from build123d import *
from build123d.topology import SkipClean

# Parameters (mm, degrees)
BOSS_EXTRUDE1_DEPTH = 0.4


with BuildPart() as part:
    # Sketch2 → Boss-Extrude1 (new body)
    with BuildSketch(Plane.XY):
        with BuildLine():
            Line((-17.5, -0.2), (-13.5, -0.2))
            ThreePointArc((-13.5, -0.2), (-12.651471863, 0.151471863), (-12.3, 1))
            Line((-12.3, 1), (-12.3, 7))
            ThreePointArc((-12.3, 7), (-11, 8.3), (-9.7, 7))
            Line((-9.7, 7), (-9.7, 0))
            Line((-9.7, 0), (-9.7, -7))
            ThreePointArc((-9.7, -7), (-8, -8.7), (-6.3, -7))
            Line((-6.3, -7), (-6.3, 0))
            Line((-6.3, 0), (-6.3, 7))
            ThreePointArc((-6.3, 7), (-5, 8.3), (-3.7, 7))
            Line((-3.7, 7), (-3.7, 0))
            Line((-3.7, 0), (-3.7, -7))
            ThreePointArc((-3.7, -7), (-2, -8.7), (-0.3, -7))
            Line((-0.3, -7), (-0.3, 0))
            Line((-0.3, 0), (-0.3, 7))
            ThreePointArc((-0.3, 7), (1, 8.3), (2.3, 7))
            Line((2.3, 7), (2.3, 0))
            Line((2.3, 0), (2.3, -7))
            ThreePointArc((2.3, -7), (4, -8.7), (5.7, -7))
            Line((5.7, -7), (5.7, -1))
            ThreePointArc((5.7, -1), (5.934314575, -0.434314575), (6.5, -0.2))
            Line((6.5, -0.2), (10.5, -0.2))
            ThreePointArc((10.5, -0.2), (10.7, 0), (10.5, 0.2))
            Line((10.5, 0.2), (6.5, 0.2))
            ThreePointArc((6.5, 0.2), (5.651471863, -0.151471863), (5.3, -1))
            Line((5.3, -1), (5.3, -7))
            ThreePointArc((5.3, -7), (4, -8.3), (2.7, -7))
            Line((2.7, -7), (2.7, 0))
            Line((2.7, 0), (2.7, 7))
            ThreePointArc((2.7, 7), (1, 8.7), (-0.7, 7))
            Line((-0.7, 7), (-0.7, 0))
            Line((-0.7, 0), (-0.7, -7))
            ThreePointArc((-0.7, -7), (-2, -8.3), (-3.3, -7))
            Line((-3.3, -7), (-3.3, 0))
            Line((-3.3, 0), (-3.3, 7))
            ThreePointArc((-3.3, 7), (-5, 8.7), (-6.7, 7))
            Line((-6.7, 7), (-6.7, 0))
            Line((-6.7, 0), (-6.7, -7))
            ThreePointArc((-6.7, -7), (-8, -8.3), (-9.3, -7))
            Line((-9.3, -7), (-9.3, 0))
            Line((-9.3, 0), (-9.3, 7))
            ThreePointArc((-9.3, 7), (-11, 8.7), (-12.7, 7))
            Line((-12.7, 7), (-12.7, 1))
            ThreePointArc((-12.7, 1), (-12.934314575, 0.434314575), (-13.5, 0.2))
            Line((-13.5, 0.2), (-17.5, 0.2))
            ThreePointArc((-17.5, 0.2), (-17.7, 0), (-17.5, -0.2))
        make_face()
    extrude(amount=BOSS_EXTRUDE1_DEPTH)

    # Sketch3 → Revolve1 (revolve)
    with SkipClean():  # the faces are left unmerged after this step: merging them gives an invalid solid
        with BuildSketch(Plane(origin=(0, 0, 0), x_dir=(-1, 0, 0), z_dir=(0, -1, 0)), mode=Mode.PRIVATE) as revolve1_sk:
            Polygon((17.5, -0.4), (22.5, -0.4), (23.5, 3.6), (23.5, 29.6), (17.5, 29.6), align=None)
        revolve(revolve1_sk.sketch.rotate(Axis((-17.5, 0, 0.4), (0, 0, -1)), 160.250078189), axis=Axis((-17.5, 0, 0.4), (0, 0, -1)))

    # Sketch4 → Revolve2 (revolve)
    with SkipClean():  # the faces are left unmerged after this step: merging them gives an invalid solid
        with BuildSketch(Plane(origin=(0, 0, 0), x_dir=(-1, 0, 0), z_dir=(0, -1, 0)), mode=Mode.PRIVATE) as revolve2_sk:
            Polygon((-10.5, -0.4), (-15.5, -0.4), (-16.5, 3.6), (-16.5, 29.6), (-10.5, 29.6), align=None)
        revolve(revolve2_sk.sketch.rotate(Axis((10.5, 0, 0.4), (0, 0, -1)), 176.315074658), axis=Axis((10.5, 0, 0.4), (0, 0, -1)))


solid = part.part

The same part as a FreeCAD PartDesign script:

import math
import FreeCAD as App
import Part
import Sketcher

V = App.Vector

doc = App.newDocument("Part")
params = doc.addObject("Spreadsheet::Sheet", "Params")
for row, (alias, value) in enumerate([
    ("sketch1_radius", "1.2 mm"),
    ("sketch1_radius2", "1.3 mm"),
    ("sketch1_radius3", "1.7 mm"),
    ("sketch1_width", "4 mm"),
    ("sketch1_height", "6 mm"),
    ("pad1_length", "0.4 mm"),
    ("sketch2_width", "5 mm"),
    ("sketch2_width2", "6 mm"),
    ("sketch2_height", "26 mm"),
    ("sketch2_height2", "30 mm"),
    ("revolution_angle", "360 deg"),
    ("sketch3_width", "5 mm"),
    ("sketch3_width2", "6 mm"),
    ("sketch3_height", "30 mm"),
    ("sketch3_height2", "26 mm"),
    ("revolution2_angle", "360 deg"),
], start=1):
    params.set(f"A{row}", alias)
    params.set(f"B{row}", "=" + value)
    params.setAlias(f"B{row}", alias)

body = doc.addObject("PartDesign::Body", "Body")

# Sketch on XY plane
sketch1 = body.newObject("Sketcher::SketchObject", "Sketch")
sketch1.AttachmentSupport = (doc.getObject("XY_Plane"), [""])
sketch1.MapMode = "FlatFace"
sketch1.addGeometry(Part.LineSegment(V(-17.5, -0.2, 0), V(-13.5, -0.2, 0)), False)
sketch1.addGeometry(Part.ArcOfCircle(Part.Circle(V(-13.5, 1, 0), V(0, 0, 1), 1.2), math.radians(-90), math.radians(0)), False)
sketch1.addGeometry(Part.LineSegment(V(-12.3, 1, 0), V(-12.3, 7, 0)), False)
sketch1.addGeometry(Part.ArcOfCircle(Part.Circle(V(-11, 7, 0), V(0, 0, 1), 1.3), math.radians(0), math.radians(180)), False)
sketch1.addGeometry(Part.LineSegment(V(-9.7, 7, 0), V(-9.7, -7, 0)), False)
sketch1.addGeometry(Part.ArcOfCircle(Part.Circle(V(-8, -7, 0), V(0, 0, 1), 1.7), math.radians(180), math.radians(360)), False)
sketch1.addGeometry(Part.LineSegment(V(-6.3, -7, 0), V(-6.3, 7, 0)), False)
sketch1.addGeometry(Part.ArcOfCircle(Part.Circle(V(-5, 7, 0), V(0, 0, 1), 1.3), math.radians(0), math.radians(180)), False)
sketch1.addGeometry(Part.LineSegment(V(-3.7, 7, 0), V(-3.7, -7, 0)), False)
sketch1.addGeometry(Part.ArcOfCircle(Part.Circle(V(-2, -7, 0), V(0, 0, 1), 1.7), math.radians(180), math.radians(360)), False)
sketch1.addGeometry(Part.LineSegment(V(-0.3, -7, 0), V(-0.3, 7, 0)), False)
sketch1.addGeometry(Part.ArcOfCircle(Part.Circle(V(1, 7, 0), V(0, 0, 1), 1.3), math.radians(0), math.radians(180)), False)
sketch1.addGeometry(Part.LineSegment(V(2.3, 7, 0), V(2.3, -7, 0)), False)
sketch1.addGeometry(Part.ArcOfCircle(Part.Circle(V(4, -7, 0), V(0, 0, 1), 1.7), math.radians(180), math.radians(360)), False)
sketch1.addGeometry(Part.LineSegment(V(5.7, -7, 0), V(5.7, -1, 0)), False)
sketch1.addGeometry(Part.ArcOfCircle(Part.Circle(V(6.5, -1, 0), V(0, 0, 1), 0.8), math.radians(90), math.radians(180)), False)
sketch1.addGeometry(Part.LineSegment(V(6.5, -0.2, 0), V(10.5, -0.2, 0)), False)
sketch1.addGeometry(Part.ArcOfCircle(Part.Circle(V(10.5, 0, 0), V(0, 0, 1), 0.2), math.radians(-90), math.radians(90)), False)
sketch1.addGeometry(Part.LineSegment(V(10.5, 0.2, 0), V(6.5, 0.2, 0)), False)
sketch1.addGeometry(Part.ArcOfCircle(Part.Circle(V(6.5, -1, 0), V(0, 0, 1), 1.2), math.radians(90), math.radians(180)), False)
sketch1.addGeometry(Part.LineSegment(V(5.3, -1, 0), V(5.3, -7, 0)), False)
sketch1.addGeometry(Part.ArcOfCircle(Part.Circle(V(4, -7, 0), V(0, 0, 1), 1.3), math.radians(180), math.radians(360)), False)
sketch1.addGeometry(Part.LineSegment(V(2.7, -7, 0), V(2.7, 7, 0)), False)
sketch1.addGeometry(Part.ArcOfCircle(Part.Circle(V(1, 7, 0), V(0, 0, 1), 1.7), math.radians(0), math.radians(180)), False)
sketch1.addGeometry(Part.LineSegment(V(-0.7, 7, 0), V(-0.7, -7, 0)), False)
sketch1.addGeometry(Part.ArcOfCircle(Part.Circle(V(-2, -7, 0), V(0, 0, 1), 1.3), math.radians(180), math.radians(360)), False)
sketch1.addGeometry(Part.LineSegment(V(-3.3, -7, 0), V(-3.3, 7, 0)), False)
sketch1.addGeometry(Part.ArcOfCircle(Part.Circle(V(-5, 7, 0), V(0, 0, 1), 1.7), math.radians(0), math.radians(180)), False)
sketch1.addGeometry(Part.LineSegment(V(-6.7, 7, 0), V(-6.7, -7, 0)), False)
sketch1.addGeometry(Part.ArcOfCircle(Part.Circle(V(-8, -7, 0), V(0, 0, 1), 1.3), math.radians(180), math.radians(360)), False)
sketch1.addGeometry(Part.LineSegment(V(-9.3, -7, 0), V(-9.3, 7, 0)), False)
sketch1.addGeometry(Part.ArcOfCircle(Part.Circle(V(-11, 7, 0), V(0, 0, 1), 1.7), math.radians(0), math.radians(180)), False)
sketch1.addGeometry(Part.LineSegment(V(-12.7, 7, 0), V(-12.7, 1, 0)), False)
sketch1.addGeometry(Part.ArcOfCircle(Part.Circle(V(-13.5, 1, 0), V(0, 0, 1), 0.8), math.radians(-90), math.radians(0)), False)
sketch1.addGeometry(Part.LineSegment(V(-13.5, 0.2, 0), V(-17.5, 0.2, 0)), False)
sketch1.addGeometry(Part.ArcOfCircle(Part.Circle(V(-17.5, 0, 0), V(0, 0, 1), 0.2), math.radians(90), math.radians(270)), False)
sketch1.addConstraint(Sketcher.Constraint("Tangent", 0, 2, 1, 1))
sketch1.addConstraint(Sketcher.Constraint("Tangent", 1, 2, 2, 1))
sketch1.addConstraint(Sketcher.Constraint("Tangent", 2, 2, 3, 2))
sketch1.addConstraint(Sketcher.Constraint("Tangent", 3, 1, 4, 1))
sketch1.addConstraint(Sketcher.Constraint("Tangent", 4, 2, 5, 1))
sketch1.addConstraint(Sketcher.Constraint("Tangent", 5, 2, 6, 1))
sketch1.addConstraint(Sketcher.Constraint("Tangent", 6, 2, 7, 2))
sketch1.addConstraint(Sketcher.Constraint("Tangent", 7, 1, 8, 1))
sketch1.addConstraint(Sketcher.Constraint("Tangent", 8, 2, 9, 1))
sketch1.addConstraint(Sketcher.Constraint("Tangent", 9, 2, 10, 1))
sketch1.addConstraint(Sketcher.Constraint("Tangent", 10, 2, 11, 2))
sketch1.addConstraint(Sketcher.Constraint("Tangent", 11, 1, 12, 1))
sketch1.addConstraint(Sketcher.Constraint("Tangent", 12, 2, 13, 1))
sketch1.addConstraint(Sketcher.Constraint("Tangent", 13, 2, 14, 1))
sketch1.addConstraint(Sketcher.Constraint("Tangent", 14, 2, 15, 2))
sketch1.addConstraint(Sketcher.Constraint("Tangent", 15, 1, 16, 1))
sketch1.addConstraint(Sketcher.Constraint("Tangent", 16, 2, 17, 1))
sketch1.addConstraint(Sketcher.Constraint("Tangent", 17, 2, 18, 1))
sketch1.addConstraint(Sketcher.Constraint("Tangent", 18, 2, 19, 1))
sketch1.addConstraint(Sketcher.Constraint("Tangent", 19, 2, 20, 1))
sketch1.addConstraint(Sketcher.Constraint("Tangent", 20, 2, 21, 2))
sketch1.addConstraint(Sketcher.Constraint("Tangent", 21, 1, 22, 1))
sketch1.addConstraint(Sketcher.Constraint("Tangent", 22, 2, 23, 1))
sketch1.addConstraint(Sketcher.Constraint("Tangent", 23, 2, 24, 1))
sketch1.addConstraint(Sketcher.Constraint("Tangent", 24, 2, 25, 2))
sketch1.addConstraint(Sketcher.Constraint("Tangent", 25, 1, 26, 1))
sketch1.addConstraint(Sketcher.Constraint("Tangent", 26, 2, 27, 1))
sketch1.addConstraint(Sketcher.Constraint("Tangent", 27, 2, 28, 1))
sketch1.addConstraint(Sketcher.Constraint("Tangent", 28, 2, 29, 2))
sketch1.addConstraint(Sketcher.Constraint("Tangent", 29, 1, 30, 1))
sketch1.addConstraint(Sketcher.Constraint("Tangent", 30, 2, 31, 1))
sketch1.addConstraint(Sketcher.Constraint("Tangent", 31, 2, 32, 1))
sketch1.addConstraint(Sketcher.Constraint("Tangent", 32, 2, 33, 2))
sketch1.addConstraint(Sketcher.Constraint("Tangent", 33, 1, 34, 1))
sketch1.addConstraint(Sketcher.Constraint("Tangent", 34, 2, 35, 1))
sketch1.addConstraint(Sketcher.Constraint("Tangent", 35, 2, 0, 1))
sketch1.addConstraint(Sketcher.Constraint("Horizontal", 0))
sketch1.addConstraint(Sketcher.Constraint("Vertical", 2))
sketch1.addConstraint(Sketcher.Constraint("Vertical", 4))
sketch1.addConstraint(Sketcher.Constraint("Vertical", 6))
sketch1.addConstraint(Sketcher.Constraint("Vertical", 8))
sketch1.addConstraint(Sketcher.Constraint("Vertical", 10))
sketch1.addConstraint(Sketcher.Constraint("Vertical", 12))
sketch1.addConstraint(Sketcher.Constraint("Vertical", 14))
sketch1.addConstraint(Sketcher.Constraint("Horizontal", 16))
sketch1.addConstraint(Sketcher.Constraint("Horizontal", 18))
sketch1.addConstraint(Sketcher.Constraint("Vertical", 20))
sketch1.addConstraint(Sketcher.Constraint("Vertical", 22))
sketch1.addConstraint(Sketcher.Constraint("Vertical", 24))
sketch1.addConstraint(Sketcher.Constraint("Vertical", 26))
sketch1.addConstraint(Sketcher.Constraint("Vertical", 28))
sketch1.addConstraint(Sketcher.Constraint("Vertical", 30))
sketch1.addConstraint(Sketcher.Constraint("Vertical", 32))
sketch1.addConstraint(Sketcher.Constraint("Horizontal", 34))
sketch1.addConstraint(Sketcher.Constraint("Coincident", 19, 3, 15, 3))
sketch1.addConstraint(Sketcher.Constraint("Coincident", 21, 3, 13, 3))
sketch1.addConstraint(Sketcher.Constraint("Coincident", 23, 3, 11, 3))
sketch1.addConstraint(Sketcher.Constraint("Coincident", 25, 3, 9, 3))
sketch1.addConstraint(Sketcher.Constraint("Coincident", 27, 3, 7, 3))
sketch1.addConstraint(Sketcher.Constraint("Coincident", 29, 3, 5, 3))
sketch1.addConstraint(Sketcher.Constraint("Coincident", 31, 3, 3, 3))
sketch1.addConstraint(Sketcher.Constraint("Coincident", 33, 3, 1, 3))
sketch1.addConstraint(Sketcher.Constraint("Equal", 3, 7))
sketch1.addConstraint(Sketcher.Constraint("Equal", 5, 9))
sketch1.addConstraint(Sketcher.Constraint("Equal", 7, 11))
sketch1.addConstraint(Sketcher.Constraint("Equal", 9, 13))
sketch1.addConstraint(Sketcher.Constraint("Equal", 1, 19))
sketch1.addConstraint(Sketcher.Constraint("Equal", 11, 21))
sketch1.addConstraint(Sketcher.Constraint("PointOnObject", 17, 3, -1))
sketch1.addConstraint(Sketcher.Constraint("PointOnObject", 35, 3, -1))
sketch1.addConstraint(Sketcher.Constraint("Horizontal", 3, 3, 7, 3))
sketch1.addConstraint(Sketcher.Constraint("Horizontal", 5, 3, 9, 3))
sketch1.addConstraint(Sketcher.Constraint("Horizontal", 7, 3, 11, 3))
sketch1.addConstraint(Sketcher.Constraint("Horizontal", 9, 3, 13, 3))
sketch1.addConstraint(Sketcher.Constraint("Equal", 0, 16))
sketch1.addConstraint(Sketcher.Constraint("Equal", 2, 14))
sketch1.addConstraint(Sketcher.Constraint("Radius", 1, 1.2))
sketch1.addConstraint(Sketcher.Constraint("Radius", 3, 1.3))
sketch1.addConstraint(Sketcher.Constraint("Radius", 5, 1.7))
sketch1.addConstraint(Sketcher.Constraint("DistanceX", 0, 1, 0, 2, 4.0))
sketch1.addConstraint(Sketcher.Constraint("DistanceY", 2, 1, 2, 2, 6.0))
sketch1.addConstraint(Sketcher.Constraint("DistanceX", 3, 3, -1, 1, 11.0))
sketch1.setExpression("Constraints[76]", "Params.sketch1_radius")
sketch1.setExpression("Constraints[77]", "Params.sketch1_radius2")
sketch1.setExpression("Constraints[78]", "Params.sketch1_radius3")
sketch1.setExpression("Constraints[79]", "Params.sketch1_width")
sketch1.setExpression("Constraints[80]", "Params.sketch1_height")
pad1 = body.newObject("PartDesign::Pad", "Pad")
pad1.Profile = sketch1
pad1.setExpression("Length", "Params.pad1_length")

# Sketch on XZ plane
sketch2 = body.newObject("Sketcher::SketchObject", "Sketch001")
sketch2.AttachmentSupport = (doc.getObject("XZ_Plane"), [""])
sketch2.MapMode = "FlatFace"
sketch2.addGeometry(Part.LineSegment(V(-17.5, 0.4, 0), V(-22.5, 0.4, 0)), False)
sketch2.addGeometry(Part.LineSegment(V(-22.5, 0.4, 0), V(-23.5, -3.6, 0)), False)
sketch2.addGeometry(Part.LineSegment(V(-23.5, -3.6, 0), V(-23.5, -29.6, 0)), False)
sketch2.addGeometry(Part.LineSegment(V(-23.5, -29.6, 0), V(-17.5, -29.6, 0)), False)
sketch2.addGeometry(Part.LineSegment(V(-17.5, -29.6, 0), V(-17.5, 0.4, 0)), False)
sketch2.addGeometry(Part.LineSegment(V(-17.5, 0.4, 0), V(-17.5, -29.6, 0)), True)  # axis
sketch2.addConstraint(Sketcher.Constraint("Coincident", 0, 2, 1, 1))
sketch2.addConstraint(Sketcher.Constraint("Coincident", 1, 2, 2, 1))
sketch2.addConstraint(Sketcher.Constraint("Coincident", 2, 2, 3, 1))
sketch2.addConstraint(Sketcher.Constraint("Coincident", 3, 2, 4, 1))
sketch2.addConstraint(Sketcher.Constraint("Coincident", 4, 2, 0, 1))
sketch2.addConstraint(Sketcher.Constraint("Horizontal", 0))
sketch2.addConstraint(Sketcher.Constraint("Vertical", 2))
sketch2.addConstraint(Sketcher.Constraint("Horizontal", 3))
sketch2.addConstraint(Sketcher.Constraint("Vertical", 4))
sketch2.addConstraint(Sketcher.Constraint("Vertical", 5))
sketch2.addConstraint(Sketcher.Constraint("Coincident", 5, 1, 4, 2))
sketch2.addConstraint(Sketcher.Constraint("Horizontal", 2, 2, 5, 2))
sketch2.addConstraint(Sketcher.Constraint("DistanceX", 0, 2, 0, 1, 5.0))
sketch2.addConstraint(Sketcher.Constraint("DistanceX", 3, 1, 3, 2, 6.0))
sketch2.addConstraint(Sketcher.Constraint("DistanceY", 2, 2, 2, 1, 26.0))
sketch2.addConstraint(Sketcher.Constraint("DistanceY", 4, 1, 4, 2, 30.0))
sketch2.addConstraint(Sketcher.Constraint("DistanceX", 0, 2, -1, 1, 22.5))
sketch2.addConstraint(Sketcher.Constraint("DistanceY", -1, 1, 0, 2, 0.4))
sketch2.setExpression("Constraints[12]", "Params.sketch2_width")
sketch2.setExpression("Constraints[13]", "Params.sketch2_width2")
sketch2.setExpression("Constraints[14]", "Params.sketch2_height")
sketch2.setExpression("Constraints[15]", "Params.sketch2_height2")
revolution = body.newObject("PartDesign::Revolution", "Revolution")
revolution.Profile = sketch2
revolution.ReferenceAxis = (sketch2, ["Axis0"])
revolution.setExpression("Angle", "Params.revolution_angle")

# Sketch on XZ plane
sketch3 = body.newObject("Sketcher::SketchObject", "Sketch002")
sketch3.AttachmentSupport = (doc.getObject("XZ_Plane"), [""])
sketch3.MapMode = "FlatFace"
sketch3.addGeometry(Part.LineSegment(V(15.5, 0.4, 0), V(10.5, 0.4, 0)), False)
sketch3.addGeometry(Part.LineSegment(V(10.5, 0.4, 0), V(10.5, -29.6, 0)), False)
sketch3.addGeometry(Part.LineSegment(V(10.5, -29.6, 0), V(16.5, -29.6, 0)), False)
sketch3.addGeometry(Part.LineSegment(V(16.5, -29.6, 0), V(16.5, -3.6, 0)), False)
sketch3.addGeometry(Part.LineSegment(V(16.5, -3.6, 0), V(15.5, 0.4, 0)), False)
sketch3.addGeometry(Part.LineSegment(V(10.5, 0.4, 0), V(10.5, -29.6, 0)), True)  # axis
sketch3.addConstraint(Sketcher.Constraint("Coincident", 0, 2, 1, 1))
sketch3.addConstraint(Sketcher.Constraint("Coincident", 1, 2, 2, 1))
sketch3.addConstraint(Sketcher.Constraint("Coincident", 2, 2, 3, 1))
sketch3.addConstraint(Sketcher.Constraint("Coincident", 3, 2, 4, 1))
sketch3.addConstraint(Sketcher.Constraint("Coincident", 4, 2, 0, 1))
sketch3.addConstraint(Sketcher.Constraint("Horizontal", 0))
sketch3.addConstraint(Sketcher.Constraint("Vertical", 1))
sketch3.addConstraint(Sketcher.Constraint("Horizontal", 2))
sketch3.addConstraint(Sketcher.Constraint("Vertical", 3))
sketch3.addConstraint(Sketcher.Constraint("Vertical", 5))
sketch3.addConstraint(Sketcher.Constraint("Coincident", 5, 1, 0, 2))
sketch3.addConstraint(Sketcher.Constraint("Horizontal", 2, 2, 5, 2))
sketch3.addConstraint(Sketcher.Constraint("DistanceX", 0, 2, 0, 1, 5.0))
sketch3.addConstraint(Sketcher.Constraint("DistanceX", 2, 1, 2, 2, 6.0))
sketch3.addConstraint(Sketcher.Constraint("DistanceY", 1, 2, 1, 1, 30.0))
sketch3.addConstraint(Sketcher.Constraint("DistanceY", 3, 1, 3, 2, 26.0))
sketch3.addConstraint(Sketcher.Constraint("DistanceX", -1, 1, 0, 2, 10.5))
sketch3.addConstraint(Sketcher.Constraint("DistanceY", -1, 1, 0, 2, 0.4))
sketch3.setExpression("Constraints[12]", "Params.sketch3_width")
sketch3.setExpression("Constraints[13]", "Params.sketch3_width2")
sketch3.setExpression("Constraints[14]", "Params.sketch3_height")
sketch3.setExpression("Constraints[15]", "Params.sketch3_height2")
revolution2 = body.newObject("PartDesign::Revolution", "Revolution001")
revolution2.Profile = sketch3
revolution2.ReferenceAxis = (sketch3, ["Axis0"])
revolution2.setExpression("Angle", "Params.revolution2_angle")

doc.recompute()
